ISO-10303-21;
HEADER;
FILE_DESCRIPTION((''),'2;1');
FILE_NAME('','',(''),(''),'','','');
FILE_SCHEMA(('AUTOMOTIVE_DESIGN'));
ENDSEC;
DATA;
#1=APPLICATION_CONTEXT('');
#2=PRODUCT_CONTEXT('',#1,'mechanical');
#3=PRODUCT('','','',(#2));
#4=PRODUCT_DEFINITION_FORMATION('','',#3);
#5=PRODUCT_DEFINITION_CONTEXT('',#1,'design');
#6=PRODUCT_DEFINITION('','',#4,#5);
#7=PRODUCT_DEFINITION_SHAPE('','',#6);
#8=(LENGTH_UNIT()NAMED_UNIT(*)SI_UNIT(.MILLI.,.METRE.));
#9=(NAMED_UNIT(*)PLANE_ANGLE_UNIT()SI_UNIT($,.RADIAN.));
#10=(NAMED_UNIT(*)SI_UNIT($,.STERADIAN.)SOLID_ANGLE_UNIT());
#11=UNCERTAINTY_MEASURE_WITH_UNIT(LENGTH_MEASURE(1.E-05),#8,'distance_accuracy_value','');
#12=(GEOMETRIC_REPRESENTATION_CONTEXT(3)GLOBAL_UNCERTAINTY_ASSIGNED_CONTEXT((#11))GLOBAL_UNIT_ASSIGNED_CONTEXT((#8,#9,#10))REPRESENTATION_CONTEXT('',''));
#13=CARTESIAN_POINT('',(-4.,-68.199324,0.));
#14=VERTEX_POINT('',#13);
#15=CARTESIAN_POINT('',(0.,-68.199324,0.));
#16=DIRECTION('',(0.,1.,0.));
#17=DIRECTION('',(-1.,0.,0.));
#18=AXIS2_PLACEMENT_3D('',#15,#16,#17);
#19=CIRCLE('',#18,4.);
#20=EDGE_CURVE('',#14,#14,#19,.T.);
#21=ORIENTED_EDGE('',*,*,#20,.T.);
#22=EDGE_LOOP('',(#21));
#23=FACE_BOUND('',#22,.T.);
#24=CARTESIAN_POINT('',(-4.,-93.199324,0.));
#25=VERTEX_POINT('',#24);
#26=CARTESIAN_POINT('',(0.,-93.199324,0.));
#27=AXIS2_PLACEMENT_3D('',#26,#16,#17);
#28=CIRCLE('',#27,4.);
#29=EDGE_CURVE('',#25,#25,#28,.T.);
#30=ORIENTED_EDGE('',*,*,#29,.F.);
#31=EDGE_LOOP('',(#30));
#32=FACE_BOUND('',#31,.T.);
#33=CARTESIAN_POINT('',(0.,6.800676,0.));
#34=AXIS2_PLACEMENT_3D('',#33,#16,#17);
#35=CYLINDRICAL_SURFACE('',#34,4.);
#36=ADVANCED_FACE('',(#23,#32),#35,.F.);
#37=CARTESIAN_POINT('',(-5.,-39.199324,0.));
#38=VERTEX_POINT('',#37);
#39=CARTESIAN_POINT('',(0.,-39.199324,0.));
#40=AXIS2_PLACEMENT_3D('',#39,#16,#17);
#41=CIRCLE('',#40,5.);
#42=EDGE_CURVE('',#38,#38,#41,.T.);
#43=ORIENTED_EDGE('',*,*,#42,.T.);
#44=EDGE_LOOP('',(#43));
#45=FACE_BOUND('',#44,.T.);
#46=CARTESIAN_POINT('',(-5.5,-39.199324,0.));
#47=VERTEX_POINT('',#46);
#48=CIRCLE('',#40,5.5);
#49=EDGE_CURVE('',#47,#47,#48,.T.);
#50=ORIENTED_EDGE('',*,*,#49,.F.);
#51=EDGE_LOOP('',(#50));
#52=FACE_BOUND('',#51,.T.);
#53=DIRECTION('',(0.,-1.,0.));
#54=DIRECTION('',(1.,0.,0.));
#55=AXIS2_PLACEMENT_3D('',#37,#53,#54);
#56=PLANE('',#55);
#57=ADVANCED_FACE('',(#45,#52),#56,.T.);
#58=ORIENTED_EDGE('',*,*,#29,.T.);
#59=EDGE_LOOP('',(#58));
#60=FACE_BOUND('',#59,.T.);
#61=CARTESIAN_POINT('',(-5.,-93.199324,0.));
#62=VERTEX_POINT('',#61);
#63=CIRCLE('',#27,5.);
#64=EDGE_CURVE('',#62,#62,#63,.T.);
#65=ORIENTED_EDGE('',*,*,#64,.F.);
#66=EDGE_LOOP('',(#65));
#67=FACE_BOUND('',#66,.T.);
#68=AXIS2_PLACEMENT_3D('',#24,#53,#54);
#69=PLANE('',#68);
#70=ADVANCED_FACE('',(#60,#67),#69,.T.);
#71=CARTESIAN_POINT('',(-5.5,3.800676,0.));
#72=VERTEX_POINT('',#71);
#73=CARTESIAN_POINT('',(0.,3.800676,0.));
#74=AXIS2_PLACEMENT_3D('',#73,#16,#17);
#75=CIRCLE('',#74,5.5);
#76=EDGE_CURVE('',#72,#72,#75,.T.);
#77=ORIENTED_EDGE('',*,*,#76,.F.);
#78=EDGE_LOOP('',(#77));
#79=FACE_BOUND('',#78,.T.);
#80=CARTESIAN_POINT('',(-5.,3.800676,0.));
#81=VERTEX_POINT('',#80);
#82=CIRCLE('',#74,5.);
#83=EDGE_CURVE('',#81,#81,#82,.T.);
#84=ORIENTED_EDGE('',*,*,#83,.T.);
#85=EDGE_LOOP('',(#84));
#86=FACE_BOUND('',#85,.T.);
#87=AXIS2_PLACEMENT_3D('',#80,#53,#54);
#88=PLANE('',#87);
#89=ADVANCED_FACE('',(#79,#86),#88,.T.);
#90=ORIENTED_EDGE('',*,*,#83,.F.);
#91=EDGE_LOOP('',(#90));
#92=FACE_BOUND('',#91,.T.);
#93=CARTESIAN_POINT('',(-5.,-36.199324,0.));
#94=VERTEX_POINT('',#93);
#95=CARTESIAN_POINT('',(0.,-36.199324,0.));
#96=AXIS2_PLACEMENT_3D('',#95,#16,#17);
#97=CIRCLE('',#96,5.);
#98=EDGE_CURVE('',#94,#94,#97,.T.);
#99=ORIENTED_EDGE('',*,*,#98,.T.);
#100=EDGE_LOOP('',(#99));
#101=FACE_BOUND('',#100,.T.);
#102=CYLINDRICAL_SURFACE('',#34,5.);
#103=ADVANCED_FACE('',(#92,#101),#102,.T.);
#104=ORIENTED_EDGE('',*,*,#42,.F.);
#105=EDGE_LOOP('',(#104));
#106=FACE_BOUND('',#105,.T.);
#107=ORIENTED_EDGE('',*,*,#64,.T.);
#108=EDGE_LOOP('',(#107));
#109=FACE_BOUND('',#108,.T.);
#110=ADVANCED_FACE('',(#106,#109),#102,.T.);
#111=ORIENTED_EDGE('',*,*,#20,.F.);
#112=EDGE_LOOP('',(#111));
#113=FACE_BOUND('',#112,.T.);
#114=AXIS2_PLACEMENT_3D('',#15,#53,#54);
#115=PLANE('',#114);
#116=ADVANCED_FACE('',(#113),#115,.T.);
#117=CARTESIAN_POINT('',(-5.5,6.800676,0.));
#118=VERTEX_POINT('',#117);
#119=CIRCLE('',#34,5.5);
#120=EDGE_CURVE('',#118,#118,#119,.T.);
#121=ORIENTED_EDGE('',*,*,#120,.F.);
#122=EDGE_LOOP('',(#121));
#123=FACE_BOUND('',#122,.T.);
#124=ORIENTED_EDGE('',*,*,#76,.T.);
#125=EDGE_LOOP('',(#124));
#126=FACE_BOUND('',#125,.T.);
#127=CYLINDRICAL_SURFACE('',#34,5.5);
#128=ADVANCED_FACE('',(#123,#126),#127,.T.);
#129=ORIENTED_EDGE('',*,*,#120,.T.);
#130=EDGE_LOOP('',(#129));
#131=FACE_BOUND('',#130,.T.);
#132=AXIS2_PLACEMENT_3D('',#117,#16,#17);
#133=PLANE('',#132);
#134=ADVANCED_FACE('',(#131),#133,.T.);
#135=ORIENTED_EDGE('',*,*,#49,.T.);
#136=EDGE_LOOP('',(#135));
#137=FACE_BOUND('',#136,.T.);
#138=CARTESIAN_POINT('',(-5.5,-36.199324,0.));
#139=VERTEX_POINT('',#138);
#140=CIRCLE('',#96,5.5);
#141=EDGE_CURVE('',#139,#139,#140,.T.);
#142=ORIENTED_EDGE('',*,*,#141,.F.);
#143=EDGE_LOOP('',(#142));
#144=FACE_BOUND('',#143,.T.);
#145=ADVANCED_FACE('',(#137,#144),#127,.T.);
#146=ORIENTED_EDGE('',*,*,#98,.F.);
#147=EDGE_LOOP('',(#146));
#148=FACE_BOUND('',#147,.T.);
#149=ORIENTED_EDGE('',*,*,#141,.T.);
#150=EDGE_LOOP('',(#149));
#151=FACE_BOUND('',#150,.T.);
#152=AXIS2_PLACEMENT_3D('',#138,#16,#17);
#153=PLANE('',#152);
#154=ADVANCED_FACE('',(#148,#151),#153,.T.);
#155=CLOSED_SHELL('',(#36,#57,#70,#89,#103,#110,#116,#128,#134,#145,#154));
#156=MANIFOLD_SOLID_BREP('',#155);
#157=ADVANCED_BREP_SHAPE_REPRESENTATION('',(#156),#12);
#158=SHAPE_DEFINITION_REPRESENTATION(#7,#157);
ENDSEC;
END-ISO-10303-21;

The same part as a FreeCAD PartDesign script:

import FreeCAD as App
import Part
import Sketcher

V = App.Vector


def add_polygon(sketch, points):
    """Adds a closed chain of lines whose ends are joined by coincident constraints."""
    first, n = sketch.GeometryCount, len(points)
    for a, b in zip(points, points[1:] + points[:1]):
        sketch.addGeometry(Part.LineSegment(App.Vector(*a, 0), App.Vector(*b, 0)), False)
    for i in range(n):
        sketch.addConstraint(Sketcher.Constraint("Coincident", first + i, 2, first + (i + 1) % n, 1))

doc = App.newDocument("Part")
params = doc.addObject("Spreadsheet::Sheet", "Params")
for row, (alias, value) in enumerate([
    ("sketch1_width", "1 mm"),
    ("sketch1_width2", "4 mm"),
    ("sketch1_height", "25 mm"),
    ("sketch1_height2", "75 mm"),
    ("sketch1_height3", "3 mm"),
    ("revolution_angle", "360 deg"),
], start=1):
    params.set(f"A{row}", alias)
    params.set(f"B{row}", "=" + value)
    params.setAlias(f"B{row}", alias)

body = doc.addObject("PartDesign::Body", "Body")

# Sketch on XY plane
sketch1 = doc.addObject("Sketcher::SketchObject", "Sketch")
body.addObject(sketch1)
sketch1.AttachmentSupport = (doc.XY_Plane, [""])
sketch1.MapMode = "FlatFace"
add_polygon(sketch1, [(-5, -93.2), (-4, -93.2), (-4, -68.2), (0, -68.2), (0, 6.8), (-5.5, 6.8), (-5.5, 3.8), (-5, 3.8), (-5, -36.2), (-5.5, -36.2), (-5.5, -39.2), (-5, -39.2)])  # lines 0-11
sketch1.addConstraint(Sketcher.Constraint("Horizontal", 0))
sketch1.addConstraint(Sketcher.Constraint("Vertical", 1))
sketch1.addConstraint(Sketcher.Constraint("Horizontal", 2))
sketch1.addConstraint(Sketcher.Constraint("Vertical", 3))
sketch1.addConstraint(Sketcher.Constraint("Horizontal", 4))
sketch1.addConstraint(Sketcher.Constraint("Vertical", 5))
sketch1.addConstraint(Sketcher.Constraint("Horizontal", 6))
sketch1.addConstraint(Sketcher.Constraint("Vertical", 7))
sketch1.addConstraint(Sketcher.Constraint("Horizontal", 8))
sketch1.addConstraint(Sketcher.Constraint("Vertical", 9))
sketch1.addConstraint(Sketcher.Constraint("Horizontal", 10))
sketch1.addConstraint(Sketcher.Constraint("Vertical", 11))
sketch1.addConstraint(Sketcher.Constraint("PointOnObject", 2, 2, -2))
sketch1.addConstraint(Sketcher.Constraint("Vertical", 5, 2, 8, 2))
sketch1.addConstraint(Sketcher.Constraint("Vertical", 7, 2, 10, 2))
sketch1.addConstraint(Sketcher.Constraint("Equal", 5, 9))
sketch1.addConstraint(Sketcher.Constraint("DistanceX", 0, 1, 0, 2, 1.0))
sketch1.addConstraint(Sketcher.Constraint("DistanceX", 2, 1, 2, 2, 4.0))
sketch1.addConstraint(Sketcher.Constraint("DistanceY", 1, 1, 1, 2, 25.0))
sketch1.addConstraint(Sketcher.Constraint("DistanceY", 3, 1, 3, 2, 75.0))
sketch1.addConstraint(Sketcher.Constraint("DistanceY", 5, 2, 5, 1, 3.0))
sketch1.addConstraint(Sketcher.Constraint("DistanceY", 7, 2, 7, 1, 40.0))
sketch1.addConstraint(Sketcher.Constraint("DistanceX", 4, 2, 4, 1, 5.5))
sketch1.addConstraint(Sketcher.Constraint("DistanceY", 0, 2, -1, 1, 93.199324))
sketch1.setExpression("Constraints[28]", "Params.sketch1_width")
sketch1.setExpression("Constraints[29]", "Params.sketch1_width2")
sketch1.setExpression("Constraints[30]", "Params.sketch1_height")
sketch1.setExpression("Constraints[31]", "Params.sketch1_height2")
sketch1.setExpression("Constraints[32]", "Params.sketch1_height3")
revolution = doc.addObject("PartDesign::Revolution", "Revolution")
body.addObject(revolution)
revolution.Profile = sketch1
revolution.ReferenceAxis = (sketch1, ["V_Axis"])
revolution.setExpression("Angle", "Params.revolution_angle")

doc.recompute()
